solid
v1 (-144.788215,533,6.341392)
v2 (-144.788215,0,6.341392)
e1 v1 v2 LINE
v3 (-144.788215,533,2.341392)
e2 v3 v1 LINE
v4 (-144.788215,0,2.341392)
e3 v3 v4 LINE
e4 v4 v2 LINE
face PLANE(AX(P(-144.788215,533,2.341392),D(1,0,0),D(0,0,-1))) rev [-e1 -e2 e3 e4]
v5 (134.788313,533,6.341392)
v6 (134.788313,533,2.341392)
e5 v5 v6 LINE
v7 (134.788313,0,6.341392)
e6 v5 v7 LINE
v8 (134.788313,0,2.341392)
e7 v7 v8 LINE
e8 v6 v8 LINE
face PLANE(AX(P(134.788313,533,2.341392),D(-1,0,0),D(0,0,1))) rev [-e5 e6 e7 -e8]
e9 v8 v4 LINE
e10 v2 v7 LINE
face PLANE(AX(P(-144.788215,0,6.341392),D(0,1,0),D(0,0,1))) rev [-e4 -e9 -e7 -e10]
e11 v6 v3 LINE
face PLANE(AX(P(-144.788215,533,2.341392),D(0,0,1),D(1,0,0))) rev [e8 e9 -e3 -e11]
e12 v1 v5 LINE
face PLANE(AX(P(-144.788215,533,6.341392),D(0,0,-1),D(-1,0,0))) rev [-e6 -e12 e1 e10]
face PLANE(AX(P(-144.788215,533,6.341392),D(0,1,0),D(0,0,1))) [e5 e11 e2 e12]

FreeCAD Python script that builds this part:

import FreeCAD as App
import Part
import Sketcher

V = App.Vector

doc = App.newDocument("Part")
body = doc.addObject("PartDesign::Body", "Body")

# Sketch on XZ plane
sketch1 = body.newObject("Sketcher::SketchObject", "Sketch")
sketch1.AttachmentSupport = (doc.getObject("XZ_Plane"), [""])
sketch1.MapMode = "FlatFace"
sketch1.addGeometry(Part.LineSegment(V(-144.788215, 2.341392, 0), V(-144.788215, 6.341392, 0)), False)
sketch1.addGeometry(Part.LineSegment(V(-144.788215, 6.341392, 0), V(134.788313, 6.341392, 0)), False)
sketch1.addGeometry(Part.LineSegment(V(134.788313, 6.341392, 0), V(134.788313, 2.341392, 0)), False)
sketch1.addGeometry(Part.LineSegment(V(134.788313, 2.341392, 0), V(-144.788215, 2.341392, 0)), False)
sketch1.addConstraint(Sketcher.Constraint("Coincident", 0, 2, 1, 1))
sketch1.addConstraint(Sketcher.Constraint("Coincident", 1, 2, 2, 1))
sketch1.addConstraint(Sketcher.Constraint("Coincident", 2, 2, 3, 1))
sketch1.addConstraint(Sketcher.Constraint("Coincident", 3, 2, 0, 1))
sketch1.addConstraint(Sketcher.Constraint("Vertical", 0))
sketch1.addConstraint(Sketcher.Constraint("Horizontal", 1))
sketch1.addConstraint(Sketcher.Constraint("Vertical", 2))
sketch1.addConstraint(Sketcher.Constraint("Horizontal", 3))
sketch1.addConstraint(Sketcher.Constraint("DistanceY", 0, 1, 0, 2, 4.0))
sketch1.addConstraint(Sketcher.Constraint("DistanceX", 1, 1, 1, 2, 279.576528))
sketch1.addConstraint(Sketcher.Constraint("DistanceX", 0, 2, -1, 1, 144.788215))
sketch1.addConstraint(Sketcher.Constraint("DistanceY", -1, 1, 0, 2, 6.341392))
pad1 = body.newObject("PartDesign::Pad", "Pad")
pad1.Profile = sketch1
pad1.Length = 533
pad1.Reversed = True

doc.recompute()
